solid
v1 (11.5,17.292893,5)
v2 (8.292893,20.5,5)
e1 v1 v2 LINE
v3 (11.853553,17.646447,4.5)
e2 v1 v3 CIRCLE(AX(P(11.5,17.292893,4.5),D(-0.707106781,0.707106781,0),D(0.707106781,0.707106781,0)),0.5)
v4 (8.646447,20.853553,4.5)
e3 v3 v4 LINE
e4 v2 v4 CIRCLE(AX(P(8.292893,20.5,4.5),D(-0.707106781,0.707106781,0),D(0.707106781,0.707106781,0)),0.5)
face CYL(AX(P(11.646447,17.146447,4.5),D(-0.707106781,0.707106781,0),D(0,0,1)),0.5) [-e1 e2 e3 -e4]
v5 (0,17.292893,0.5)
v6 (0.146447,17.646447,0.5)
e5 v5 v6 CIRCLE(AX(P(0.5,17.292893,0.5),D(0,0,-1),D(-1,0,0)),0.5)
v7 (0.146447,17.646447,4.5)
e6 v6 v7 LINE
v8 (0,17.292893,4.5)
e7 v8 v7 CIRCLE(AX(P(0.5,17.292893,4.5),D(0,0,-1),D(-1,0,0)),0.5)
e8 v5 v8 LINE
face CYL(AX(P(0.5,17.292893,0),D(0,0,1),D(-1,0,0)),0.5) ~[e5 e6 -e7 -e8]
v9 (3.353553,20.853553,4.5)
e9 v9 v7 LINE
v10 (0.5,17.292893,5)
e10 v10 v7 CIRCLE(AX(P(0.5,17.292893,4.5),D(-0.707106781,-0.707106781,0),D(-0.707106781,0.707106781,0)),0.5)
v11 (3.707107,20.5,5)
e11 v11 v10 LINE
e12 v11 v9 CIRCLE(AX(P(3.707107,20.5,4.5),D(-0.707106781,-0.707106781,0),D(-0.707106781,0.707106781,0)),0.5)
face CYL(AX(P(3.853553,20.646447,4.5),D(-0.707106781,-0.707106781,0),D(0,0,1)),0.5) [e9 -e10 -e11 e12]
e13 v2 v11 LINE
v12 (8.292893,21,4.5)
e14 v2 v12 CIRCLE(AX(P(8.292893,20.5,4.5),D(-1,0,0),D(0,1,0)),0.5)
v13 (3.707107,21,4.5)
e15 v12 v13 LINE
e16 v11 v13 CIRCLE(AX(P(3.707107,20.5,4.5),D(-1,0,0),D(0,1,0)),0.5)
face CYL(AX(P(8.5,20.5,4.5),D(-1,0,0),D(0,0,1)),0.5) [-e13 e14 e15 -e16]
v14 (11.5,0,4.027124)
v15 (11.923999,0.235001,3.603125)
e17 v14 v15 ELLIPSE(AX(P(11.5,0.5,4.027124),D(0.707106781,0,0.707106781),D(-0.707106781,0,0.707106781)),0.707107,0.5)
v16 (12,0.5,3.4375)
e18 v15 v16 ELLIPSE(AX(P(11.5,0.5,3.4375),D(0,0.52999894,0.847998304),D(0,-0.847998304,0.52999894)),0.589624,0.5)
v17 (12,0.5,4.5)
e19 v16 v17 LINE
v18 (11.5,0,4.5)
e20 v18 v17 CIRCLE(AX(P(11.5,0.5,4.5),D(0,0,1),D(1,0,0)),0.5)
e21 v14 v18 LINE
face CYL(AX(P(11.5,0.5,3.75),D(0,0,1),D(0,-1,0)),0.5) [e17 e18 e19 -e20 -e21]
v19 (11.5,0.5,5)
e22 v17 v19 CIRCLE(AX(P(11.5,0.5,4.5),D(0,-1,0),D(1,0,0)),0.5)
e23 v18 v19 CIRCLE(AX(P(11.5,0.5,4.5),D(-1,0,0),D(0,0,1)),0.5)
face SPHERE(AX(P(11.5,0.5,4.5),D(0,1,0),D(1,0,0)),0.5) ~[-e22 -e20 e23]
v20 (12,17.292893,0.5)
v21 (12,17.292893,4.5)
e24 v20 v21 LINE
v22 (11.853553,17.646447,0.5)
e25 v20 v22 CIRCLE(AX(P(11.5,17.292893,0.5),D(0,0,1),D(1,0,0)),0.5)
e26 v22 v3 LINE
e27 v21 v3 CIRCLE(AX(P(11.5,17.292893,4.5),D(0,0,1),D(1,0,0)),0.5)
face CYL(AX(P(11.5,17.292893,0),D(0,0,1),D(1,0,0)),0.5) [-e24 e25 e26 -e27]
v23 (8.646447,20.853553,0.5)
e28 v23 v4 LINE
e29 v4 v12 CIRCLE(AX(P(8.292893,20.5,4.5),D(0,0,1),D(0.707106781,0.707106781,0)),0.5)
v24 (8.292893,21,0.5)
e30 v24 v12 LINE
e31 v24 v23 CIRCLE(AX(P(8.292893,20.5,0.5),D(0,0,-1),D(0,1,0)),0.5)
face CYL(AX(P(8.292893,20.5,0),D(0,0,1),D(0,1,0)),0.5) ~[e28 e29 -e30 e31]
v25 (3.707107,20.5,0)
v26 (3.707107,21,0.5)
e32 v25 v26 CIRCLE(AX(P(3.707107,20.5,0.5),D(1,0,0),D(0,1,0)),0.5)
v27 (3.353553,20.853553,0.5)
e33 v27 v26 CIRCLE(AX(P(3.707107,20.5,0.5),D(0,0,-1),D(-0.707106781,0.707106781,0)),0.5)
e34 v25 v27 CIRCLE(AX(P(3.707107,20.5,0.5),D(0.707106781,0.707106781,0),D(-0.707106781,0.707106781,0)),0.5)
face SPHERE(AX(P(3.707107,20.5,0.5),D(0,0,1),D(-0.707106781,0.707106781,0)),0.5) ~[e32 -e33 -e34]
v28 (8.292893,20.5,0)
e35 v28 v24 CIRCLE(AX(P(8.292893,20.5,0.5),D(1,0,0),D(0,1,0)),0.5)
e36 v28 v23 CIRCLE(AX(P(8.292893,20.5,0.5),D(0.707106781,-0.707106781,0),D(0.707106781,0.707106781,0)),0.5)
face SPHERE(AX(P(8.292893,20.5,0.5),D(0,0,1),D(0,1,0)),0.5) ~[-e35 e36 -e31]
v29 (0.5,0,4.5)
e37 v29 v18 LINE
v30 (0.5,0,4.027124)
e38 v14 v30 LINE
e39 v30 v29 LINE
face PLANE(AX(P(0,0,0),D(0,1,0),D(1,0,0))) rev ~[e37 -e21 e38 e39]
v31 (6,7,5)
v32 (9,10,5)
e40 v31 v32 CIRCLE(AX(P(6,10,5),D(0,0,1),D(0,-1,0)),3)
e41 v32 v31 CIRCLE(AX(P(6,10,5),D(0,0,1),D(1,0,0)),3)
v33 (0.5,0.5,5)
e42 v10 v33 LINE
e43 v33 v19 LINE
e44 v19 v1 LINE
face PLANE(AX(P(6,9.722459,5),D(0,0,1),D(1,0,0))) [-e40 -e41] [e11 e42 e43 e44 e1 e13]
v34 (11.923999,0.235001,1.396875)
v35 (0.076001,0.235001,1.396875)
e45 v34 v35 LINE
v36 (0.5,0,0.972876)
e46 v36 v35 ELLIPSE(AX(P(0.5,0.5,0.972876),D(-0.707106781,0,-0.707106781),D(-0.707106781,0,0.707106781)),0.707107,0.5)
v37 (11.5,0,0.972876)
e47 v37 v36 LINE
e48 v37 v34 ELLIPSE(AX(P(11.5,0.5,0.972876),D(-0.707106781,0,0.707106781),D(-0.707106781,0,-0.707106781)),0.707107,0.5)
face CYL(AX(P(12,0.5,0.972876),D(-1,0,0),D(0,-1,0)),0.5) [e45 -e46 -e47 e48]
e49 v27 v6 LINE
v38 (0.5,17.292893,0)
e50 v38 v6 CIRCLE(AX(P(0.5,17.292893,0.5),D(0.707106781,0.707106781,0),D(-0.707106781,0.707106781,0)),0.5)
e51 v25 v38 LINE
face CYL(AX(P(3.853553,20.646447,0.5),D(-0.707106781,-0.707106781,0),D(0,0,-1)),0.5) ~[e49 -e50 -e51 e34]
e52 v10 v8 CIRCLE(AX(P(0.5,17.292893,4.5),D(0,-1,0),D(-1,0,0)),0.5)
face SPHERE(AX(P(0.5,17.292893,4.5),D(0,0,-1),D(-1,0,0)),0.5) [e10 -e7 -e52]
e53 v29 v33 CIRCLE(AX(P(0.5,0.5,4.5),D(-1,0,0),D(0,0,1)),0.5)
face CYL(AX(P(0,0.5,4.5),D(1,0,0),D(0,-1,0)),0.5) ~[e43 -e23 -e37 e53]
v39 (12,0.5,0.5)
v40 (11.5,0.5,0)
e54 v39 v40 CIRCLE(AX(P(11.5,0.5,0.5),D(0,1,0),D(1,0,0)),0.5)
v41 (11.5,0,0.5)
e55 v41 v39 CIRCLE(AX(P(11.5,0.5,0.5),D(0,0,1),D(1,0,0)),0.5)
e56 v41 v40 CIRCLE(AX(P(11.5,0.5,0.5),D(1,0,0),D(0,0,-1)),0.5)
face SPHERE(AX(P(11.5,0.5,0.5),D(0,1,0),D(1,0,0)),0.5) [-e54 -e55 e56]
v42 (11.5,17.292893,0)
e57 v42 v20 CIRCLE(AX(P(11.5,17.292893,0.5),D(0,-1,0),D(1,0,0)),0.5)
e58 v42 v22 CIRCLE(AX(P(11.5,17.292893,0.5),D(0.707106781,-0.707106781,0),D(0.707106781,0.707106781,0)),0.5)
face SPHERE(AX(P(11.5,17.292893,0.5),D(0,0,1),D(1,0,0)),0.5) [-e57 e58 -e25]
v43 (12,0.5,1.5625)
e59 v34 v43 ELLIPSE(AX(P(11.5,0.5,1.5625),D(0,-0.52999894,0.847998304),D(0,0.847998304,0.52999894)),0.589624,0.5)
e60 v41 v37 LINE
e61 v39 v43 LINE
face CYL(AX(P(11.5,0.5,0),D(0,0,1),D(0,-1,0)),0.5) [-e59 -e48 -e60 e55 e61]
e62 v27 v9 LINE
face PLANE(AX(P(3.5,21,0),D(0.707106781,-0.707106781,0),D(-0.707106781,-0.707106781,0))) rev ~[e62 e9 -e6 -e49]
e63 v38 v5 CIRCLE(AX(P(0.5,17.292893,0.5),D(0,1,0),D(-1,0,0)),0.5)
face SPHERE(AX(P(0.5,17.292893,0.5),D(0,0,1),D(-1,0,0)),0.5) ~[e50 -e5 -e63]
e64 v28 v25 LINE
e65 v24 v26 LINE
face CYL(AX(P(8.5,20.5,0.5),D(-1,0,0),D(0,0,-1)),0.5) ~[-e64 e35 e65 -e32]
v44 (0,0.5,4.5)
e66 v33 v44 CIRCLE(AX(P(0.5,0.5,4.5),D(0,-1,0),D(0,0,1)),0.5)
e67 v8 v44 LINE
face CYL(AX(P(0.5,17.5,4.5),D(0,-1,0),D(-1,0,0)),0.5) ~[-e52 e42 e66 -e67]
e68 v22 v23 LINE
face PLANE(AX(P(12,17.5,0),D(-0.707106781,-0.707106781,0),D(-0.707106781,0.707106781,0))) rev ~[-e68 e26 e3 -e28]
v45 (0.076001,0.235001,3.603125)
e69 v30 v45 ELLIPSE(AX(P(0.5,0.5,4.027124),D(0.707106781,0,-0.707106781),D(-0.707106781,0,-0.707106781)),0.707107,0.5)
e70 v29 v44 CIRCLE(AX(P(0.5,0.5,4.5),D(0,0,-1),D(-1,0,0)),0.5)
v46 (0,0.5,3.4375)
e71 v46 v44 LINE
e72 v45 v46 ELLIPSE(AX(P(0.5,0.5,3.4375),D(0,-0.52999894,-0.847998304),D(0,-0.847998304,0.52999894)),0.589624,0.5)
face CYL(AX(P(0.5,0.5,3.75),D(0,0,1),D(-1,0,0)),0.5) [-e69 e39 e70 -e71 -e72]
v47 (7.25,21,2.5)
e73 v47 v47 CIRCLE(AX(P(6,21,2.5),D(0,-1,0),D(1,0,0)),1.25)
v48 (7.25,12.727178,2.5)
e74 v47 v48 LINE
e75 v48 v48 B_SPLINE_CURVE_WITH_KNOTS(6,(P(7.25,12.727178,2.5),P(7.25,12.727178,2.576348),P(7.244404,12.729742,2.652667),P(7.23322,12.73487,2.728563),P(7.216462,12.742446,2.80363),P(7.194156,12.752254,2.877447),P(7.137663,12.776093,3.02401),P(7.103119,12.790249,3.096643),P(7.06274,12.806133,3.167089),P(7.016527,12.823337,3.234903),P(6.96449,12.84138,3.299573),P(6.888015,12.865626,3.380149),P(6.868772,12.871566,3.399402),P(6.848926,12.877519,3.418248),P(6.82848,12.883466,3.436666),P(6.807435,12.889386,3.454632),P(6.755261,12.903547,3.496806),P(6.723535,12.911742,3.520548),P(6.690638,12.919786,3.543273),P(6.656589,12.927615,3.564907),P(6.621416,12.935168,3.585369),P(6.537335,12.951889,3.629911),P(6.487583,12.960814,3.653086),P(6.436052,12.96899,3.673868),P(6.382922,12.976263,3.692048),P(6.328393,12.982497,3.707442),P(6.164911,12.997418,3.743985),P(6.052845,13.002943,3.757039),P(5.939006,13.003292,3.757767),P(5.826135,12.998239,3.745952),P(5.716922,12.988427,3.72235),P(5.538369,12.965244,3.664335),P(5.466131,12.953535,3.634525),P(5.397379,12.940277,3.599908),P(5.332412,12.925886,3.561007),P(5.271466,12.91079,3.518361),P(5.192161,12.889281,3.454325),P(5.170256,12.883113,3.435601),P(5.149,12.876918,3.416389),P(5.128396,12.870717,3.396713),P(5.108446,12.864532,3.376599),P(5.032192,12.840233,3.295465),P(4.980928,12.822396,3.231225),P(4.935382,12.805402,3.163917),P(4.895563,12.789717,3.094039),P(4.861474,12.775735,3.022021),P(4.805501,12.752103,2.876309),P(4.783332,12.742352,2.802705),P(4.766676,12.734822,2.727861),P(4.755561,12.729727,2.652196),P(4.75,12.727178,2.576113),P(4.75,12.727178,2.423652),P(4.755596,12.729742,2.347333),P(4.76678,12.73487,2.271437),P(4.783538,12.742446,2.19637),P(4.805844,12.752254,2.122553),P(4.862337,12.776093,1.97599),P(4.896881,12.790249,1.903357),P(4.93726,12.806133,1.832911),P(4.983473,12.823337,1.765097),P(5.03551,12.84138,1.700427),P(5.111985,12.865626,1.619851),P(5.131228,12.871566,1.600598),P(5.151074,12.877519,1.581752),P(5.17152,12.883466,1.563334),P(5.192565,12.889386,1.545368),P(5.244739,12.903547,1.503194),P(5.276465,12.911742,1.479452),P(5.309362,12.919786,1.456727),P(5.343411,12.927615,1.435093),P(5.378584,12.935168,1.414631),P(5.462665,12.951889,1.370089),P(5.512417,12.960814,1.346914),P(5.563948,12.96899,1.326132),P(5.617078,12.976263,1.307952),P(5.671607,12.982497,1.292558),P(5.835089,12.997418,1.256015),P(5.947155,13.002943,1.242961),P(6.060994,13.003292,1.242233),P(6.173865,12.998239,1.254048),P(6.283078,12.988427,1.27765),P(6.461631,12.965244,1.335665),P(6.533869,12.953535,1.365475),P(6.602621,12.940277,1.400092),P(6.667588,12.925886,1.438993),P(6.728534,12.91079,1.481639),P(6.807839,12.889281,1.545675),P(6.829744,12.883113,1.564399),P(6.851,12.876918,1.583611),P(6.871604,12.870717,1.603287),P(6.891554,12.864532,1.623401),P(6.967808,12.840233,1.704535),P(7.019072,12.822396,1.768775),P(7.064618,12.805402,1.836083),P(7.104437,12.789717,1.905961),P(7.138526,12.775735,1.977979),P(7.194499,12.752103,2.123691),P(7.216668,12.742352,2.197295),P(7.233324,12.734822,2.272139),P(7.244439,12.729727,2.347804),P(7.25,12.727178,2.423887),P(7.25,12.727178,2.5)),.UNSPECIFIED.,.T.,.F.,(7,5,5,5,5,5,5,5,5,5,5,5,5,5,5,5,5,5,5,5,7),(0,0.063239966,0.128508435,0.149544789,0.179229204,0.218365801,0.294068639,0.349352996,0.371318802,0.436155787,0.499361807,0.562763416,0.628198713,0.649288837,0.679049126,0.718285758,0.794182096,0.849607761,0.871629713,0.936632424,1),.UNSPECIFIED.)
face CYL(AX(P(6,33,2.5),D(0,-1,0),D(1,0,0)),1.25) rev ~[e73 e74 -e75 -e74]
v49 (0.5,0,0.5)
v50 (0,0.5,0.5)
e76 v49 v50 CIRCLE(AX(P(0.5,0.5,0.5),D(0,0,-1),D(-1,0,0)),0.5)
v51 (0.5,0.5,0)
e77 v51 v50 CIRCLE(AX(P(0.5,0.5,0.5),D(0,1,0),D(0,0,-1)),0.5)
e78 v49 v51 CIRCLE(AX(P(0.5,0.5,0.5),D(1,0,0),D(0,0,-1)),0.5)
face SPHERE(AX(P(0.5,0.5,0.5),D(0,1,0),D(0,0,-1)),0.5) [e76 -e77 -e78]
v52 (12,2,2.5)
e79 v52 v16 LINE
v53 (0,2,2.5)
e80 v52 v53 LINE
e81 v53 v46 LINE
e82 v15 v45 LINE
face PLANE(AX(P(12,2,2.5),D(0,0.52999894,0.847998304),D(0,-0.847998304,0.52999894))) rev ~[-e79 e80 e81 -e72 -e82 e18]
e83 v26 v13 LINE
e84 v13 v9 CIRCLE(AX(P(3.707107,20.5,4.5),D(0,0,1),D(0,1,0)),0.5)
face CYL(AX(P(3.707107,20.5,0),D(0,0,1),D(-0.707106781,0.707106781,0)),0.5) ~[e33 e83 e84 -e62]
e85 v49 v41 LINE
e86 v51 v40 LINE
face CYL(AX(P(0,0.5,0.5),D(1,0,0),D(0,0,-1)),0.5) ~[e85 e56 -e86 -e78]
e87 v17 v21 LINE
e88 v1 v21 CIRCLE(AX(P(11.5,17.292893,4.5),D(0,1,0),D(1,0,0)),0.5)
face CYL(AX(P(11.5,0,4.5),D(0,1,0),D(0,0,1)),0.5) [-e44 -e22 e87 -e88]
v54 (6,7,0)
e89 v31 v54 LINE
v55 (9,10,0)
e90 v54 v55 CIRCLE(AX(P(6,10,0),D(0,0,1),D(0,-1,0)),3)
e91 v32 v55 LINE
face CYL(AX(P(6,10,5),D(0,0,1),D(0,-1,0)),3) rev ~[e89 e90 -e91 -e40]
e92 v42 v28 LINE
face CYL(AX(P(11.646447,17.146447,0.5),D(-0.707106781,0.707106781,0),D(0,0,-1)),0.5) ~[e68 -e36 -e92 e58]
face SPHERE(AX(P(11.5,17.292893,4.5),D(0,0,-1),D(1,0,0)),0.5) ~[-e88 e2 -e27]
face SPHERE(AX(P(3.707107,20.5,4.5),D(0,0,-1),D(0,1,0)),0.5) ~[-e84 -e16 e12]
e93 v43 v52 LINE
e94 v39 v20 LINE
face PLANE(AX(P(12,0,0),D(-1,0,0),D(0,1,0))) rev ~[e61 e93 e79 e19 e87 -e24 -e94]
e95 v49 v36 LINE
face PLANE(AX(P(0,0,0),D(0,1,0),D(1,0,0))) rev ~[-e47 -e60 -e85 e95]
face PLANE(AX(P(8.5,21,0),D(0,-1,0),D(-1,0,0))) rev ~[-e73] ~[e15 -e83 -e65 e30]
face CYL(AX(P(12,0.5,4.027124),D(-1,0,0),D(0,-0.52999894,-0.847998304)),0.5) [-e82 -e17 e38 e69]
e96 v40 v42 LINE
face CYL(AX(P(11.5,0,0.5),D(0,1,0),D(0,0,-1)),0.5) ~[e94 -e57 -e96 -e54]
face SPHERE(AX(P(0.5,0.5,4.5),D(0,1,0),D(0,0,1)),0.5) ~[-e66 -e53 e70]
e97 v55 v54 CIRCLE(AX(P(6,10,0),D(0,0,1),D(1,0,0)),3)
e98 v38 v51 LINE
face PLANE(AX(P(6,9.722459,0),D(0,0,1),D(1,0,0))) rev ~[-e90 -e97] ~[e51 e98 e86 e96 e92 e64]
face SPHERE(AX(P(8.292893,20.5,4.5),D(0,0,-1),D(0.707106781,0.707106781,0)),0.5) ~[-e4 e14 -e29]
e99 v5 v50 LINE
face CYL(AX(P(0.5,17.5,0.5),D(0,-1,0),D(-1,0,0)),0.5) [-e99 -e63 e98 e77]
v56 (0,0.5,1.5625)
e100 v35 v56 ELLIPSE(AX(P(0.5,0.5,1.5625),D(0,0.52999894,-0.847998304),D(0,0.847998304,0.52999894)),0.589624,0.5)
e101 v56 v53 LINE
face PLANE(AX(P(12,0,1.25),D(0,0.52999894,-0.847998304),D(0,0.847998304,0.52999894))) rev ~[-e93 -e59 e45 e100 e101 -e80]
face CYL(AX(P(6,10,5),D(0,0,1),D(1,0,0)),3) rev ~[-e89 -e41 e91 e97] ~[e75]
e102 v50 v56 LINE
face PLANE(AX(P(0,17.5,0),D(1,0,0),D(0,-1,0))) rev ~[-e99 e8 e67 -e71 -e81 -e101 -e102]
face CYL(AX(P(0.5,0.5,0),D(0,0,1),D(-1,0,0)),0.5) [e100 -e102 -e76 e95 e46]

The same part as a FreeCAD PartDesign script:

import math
import FreeCAD as App
import Part
import Sketcher
from FreeCAD import Vector


def edges_at(feature, points):
    """Names of the edges that pass closest to the given points."""
    edges = feature.Shape.Edges
    near = lambda p: min(range(len(edges)), key=lambda i: edges[i].distToShape(Part.Vertex(*p))[0])
    return sorted({f"Edge{near(p) + 1}" for p in points})


def add_polygon(sketch, points):
    """Adds a closed chain of lines whose ends are joined by coincident constraints."""
    first, n = sketch.GeometryCount, len(points)
    for a, b in zip(points, points[1:] + points[:1]):
        sketch.addGeometry(Part.LineSegment(App.Vector(*a, 0), App.Vector(*b, 0)), False)
    for i in range(n):
        sketch.addConstraint(Sketcher.Constraint("Coincident", first + i, 2, first + (i + 1) % n, 1))

doc = App.newDocument("Part")
body = doc.addObject("PartDesign::Body", "Body")

# Sketch on XY plane
sketch1 = doc.addObject("Sketcher::SketchObject", "Sketch")
body.addObject(sketch1)
sketch1.AttachmentSupport = (doc.XY_Plane, [""])
sketch1.MapMode = "FlatFace"
add_polygon(sketch1, [(0, 17.5), (0, 0), (12, 0), (12, 17.5), (8.5, 21), (3.5, 21)])  # lines 0-5
sketch1.addConstraint([
    Sketcher.Constraint("Vertical", 0),
    Sketcher.Constraint("Horizontal", 1),
    Sketcher.Constraint("Vertical", 2),
    Sketcher.Constraint("Horizontal", 4),
    Sketcher.Constraint("Coincident", 0, 2, -1, 1),
    Sketcher.Constraint("Perpendicular", 3, 5),
    Sketcher.Constraint("Horizontal", 2, 2, 5, 2),
    Sketcher.Constraint("Equal", 3, 5),
    Sketcher.Constraint("DistanceX", 1, 1, 1, 2, 12.0),
    Sketcher.Constraint("DistanceX", 4, 2, 4, 1, 5.0),
    Sketcher.Constraint("DistanceY", 0, 2, 0, 1, 17.5),
])
pad1 = doc.addObject("PartDesign::Pad", "Pad")
body.addObject(pad1)
pad1.Profile = sketch1
pad1.Length = 5

# Sketch on YZ plane
sketch2 = doc.addObject("Sketcher::SketchObject", "Sketch001")
body.addObject(sketch2)
sketch2.AttachmentSupport = (doc.YZ_Plane, [""])
sketch2.MapMode = "FlatFace"
sketch2.AttachmentOffset = App.Placement(Vector(0, 0, 12), App.Rotation())
add_polygon(sketch2, [(0, 3.8), (0, 1.2), (2, 2.5)])  # lines 0-2
sketch2.addConstraint([
    Sketcher.Constraint("Vertical", 0),
    Sketcher.Constraint("PointOnObject", 0, 2, -2),
    Sketcher.Constraint("Equal", 1, 2),
    Sketcher.Constraint("DistanceY", 0, 2, 0, 1, 2.5),
    Sketcher.Constraint("DistanceX", -1, 1, 1, 2, 2.0),
    Sketcher.Constraint("DistanceY", -1, 1, 1, 2, 2.5),
])
pocket1 = doc.addObject("PartDesign::Pocket", "Pocket")
body.addObject(pocket1)
pocket1.Profile = sketch2
pocket1.Type = "ThroughAll"

# Sketch on XY plane
sketch3 = doc.addObject("Sketcher::SketchObject", "Sketch002")
body.addObject(sketch3)
sketch3.AttachmentSupport = (doc.XY_Plane, [""])
sketch3.MapMode = "FlatFace"
sketch3.AttachmentOffset = App.Placement(Vector(0, 0, 5), App.Rotation())
sketch3.addGeometry([
    Part.ArcOfCircle(Part.Circle(Vector(6, 10, 0), Vector(0, 0, 1), 3), math.radians(0), math.radians(270)),
    Part.ArcOfCircle(Part.Circle(Vector(6, 10, 0), Vector(0, 0, 1), 3), math.radians(-90), math.radians(0)),
], False)
sketch3.addConstraint([
    Sketcher.Constraint("Tangent", 0, 1, 1, 2),
    Sketcher.Constraint("Coincident", 1, 1, 0, 2),
    Sketcher.Constraint("Horizontal", 1, 3, 0, 1),
    Sketcher.Constraint("Vertical", 0, 3, 1, 1),
    Sketcher.Constraint("Radius", 0, 3.0),
    Sketcher.Constraint("DistanceX", -1, 1, 0, 3, 6.0),
    Sketcher.Constraint("DistanceY", -1, 1, 0, 3, 10.0),
])
pocket2 = doc.addObject("PartDesign::Pocket", "Pocket001")
body.addObject(pocket2)
pocket2.Profile = sketch3
pocket2.Type = "ThroughAll"

# Sketch on XZ plane
sketch4 = doc.addObject("Sketcher::SketchObject", "Sketch003")
body.addObject(sketch4)
sketch4.AttachmentSupport = (doc.XZ_Plane, [""])
sketch4.MapMode = "FlatFace"
sketch4.AttachmentOffset = App.Placement(Vector(0, 0, -21), App.Rotation())
sketch4.addGeometry(Part.Circle(Vector(6, 2.5, 0), Vector(0, 0, 1), 1.2), False)
sketch4.addConstraint([
    Sketcher.Constraint("Diameter", 0, 2.5),
    Sketcher.Constraint("DistanceX", -1, 1, 0, 3, 6.0),
    Sketcher.Constraint("DistanceY", -1, 1, 0, 3, 2.5),
])
doc.recompute()
hole = doc.addObject("PartDesign::Hole", "Hole")
body.addObject(hole)
hole.Profile = sketch4
hole.ThreadType = "None"
hole.Diameter = 2.5
hole.DepthType = "Dimension"
hole.Depth = 12
hole.DrillPoint = "Angled"
hole.DrillPointAngle = 118
hole.Reversed = True
doc.recompute()

fillet = doc.addObject("PartDesign::Fillet", "Fillet")
body.addObject(fillet)
fillet.Base = (hole, edges_at(hole, [
    (1.75, 19.25, 5),
    (3.5, 21, 2.5),
    (1.75, 19.25, 0),
    (6, 21, 5),
    (8.5, 21, 2.5),
    (6, 21, 0),
    (10.25, 19.25, 0),
    (10.25, 19.25, 5),
    (12, 17.5, 2.5),
    (0, 17.5, 2.5),
    (0, 8.75, 5),
    (0, 8.75, 0),
    (12, 8.75, 5),
    (12, 8.75, 0),
    (12, 0, 0.625),
    (6, 0, 1.25),
    (6, 0, 0),
    (12, 0, 4.375),
    (6, 0, 3.75),
    (6, 0, 5),
    (0, 0, 4.375),
    (0, 0, 0.625),
]))
fillet.Radius = 0.5

doc.recompute()
